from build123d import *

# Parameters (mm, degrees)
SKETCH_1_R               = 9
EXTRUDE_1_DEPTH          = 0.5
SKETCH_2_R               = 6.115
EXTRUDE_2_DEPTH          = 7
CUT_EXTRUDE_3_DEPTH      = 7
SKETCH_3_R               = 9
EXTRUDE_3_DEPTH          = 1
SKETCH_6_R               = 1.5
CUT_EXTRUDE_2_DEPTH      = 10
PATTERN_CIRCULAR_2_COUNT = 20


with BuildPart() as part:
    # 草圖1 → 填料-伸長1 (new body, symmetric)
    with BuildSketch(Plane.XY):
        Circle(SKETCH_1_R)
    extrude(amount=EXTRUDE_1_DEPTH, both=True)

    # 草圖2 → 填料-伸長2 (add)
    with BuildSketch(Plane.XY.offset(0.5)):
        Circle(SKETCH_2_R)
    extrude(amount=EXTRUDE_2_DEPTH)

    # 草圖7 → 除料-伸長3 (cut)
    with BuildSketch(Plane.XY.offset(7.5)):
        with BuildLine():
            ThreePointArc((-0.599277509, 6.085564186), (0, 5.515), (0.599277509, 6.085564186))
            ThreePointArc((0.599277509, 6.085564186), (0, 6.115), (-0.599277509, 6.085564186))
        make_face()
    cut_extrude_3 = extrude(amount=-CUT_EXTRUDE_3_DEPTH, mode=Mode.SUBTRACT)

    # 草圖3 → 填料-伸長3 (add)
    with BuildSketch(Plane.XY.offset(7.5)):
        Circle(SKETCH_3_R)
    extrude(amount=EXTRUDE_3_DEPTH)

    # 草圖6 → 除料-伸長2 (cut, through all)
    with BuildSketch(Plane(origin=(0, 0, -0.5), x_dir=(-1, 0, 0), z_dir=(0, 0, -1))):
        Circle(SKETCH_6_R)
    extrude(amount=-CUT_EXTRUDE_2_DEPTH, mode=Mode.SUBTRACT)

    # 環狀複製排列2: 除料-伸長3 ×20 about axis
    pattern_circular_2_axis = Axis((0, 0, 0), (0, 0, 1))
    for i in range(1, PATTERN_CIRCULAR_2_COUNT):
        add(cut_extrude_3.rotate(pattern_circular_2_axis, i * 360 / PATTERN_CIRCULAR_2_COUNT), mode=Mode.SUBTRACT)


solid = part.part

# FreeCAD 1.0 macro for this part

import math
import FreeCAD as App
import Part
import Sketcher

V = App.Vector
Q = App.Units.Quantity

doc = App.newDocument("Part")
body = doc.addObject("PartDesign::Body", "Body")

sketch1 = body.newObject("Sketcher::SketchObject", "Sketch")
sketch1.AttachmentSupport = (doc.getObject("XY_Plane"), [""])
sketch1.MapMode = "FlatFace"
sketch1.addGeometry(Part.Circle(V(0, 0, 0), V(0, 0, 1), 9), False)
sketch1.addConstraint(Sketcher.Constraint("Coincident", 0, 3, -1, 1))
sketch1.addConstraint(Sketcher.Constraint("Diameter", 0, Q("18 mm")))
pad1 = body.newObject("PartDesign::Pad", "Pad")
pad1.Profile = sketch1
pad1.Length = 1
pad1.Midplane = True

sketch2 = body.newObject("Sketcher::SketchObject", "Sketch001")
sketch2.AttachmentSupport = (doc.getObject("XY_Plane"), [""])
sketch2.MapMode = "FlatFace"
sketch2.AttachmentOffset = App.Placement(V(0, 0, 0.5), App.Rotation())
sketch2.addGeometry(Part.Circle(V(0, 0, 0), V(0, 0, 1), 6), False)
sketch2.addConstraint(Sketcher.Constraint("Coincident", 0, 3, -1, 1))
sketch2.addConstraint(Sketcher.Constraint("Diameter", 0, Q("12.23 mm")))
pad2 = body.newObject("PartDesign::Pad", "Pad001")
pad2.Profile = sketch2
pad2.Length = 7

sketch3 = body.newObject("Sketcher::SketchObject", "Sketch002")
sketch3.AttachmentSupport = (doc.getObject("XY_Plane"), [""])
sketch3.MapMode = "FlatFace"
sketch3.AttachmentOffset = App.Placement(V(0, 0, 7.5), App.Rotation())
sketch3.addGeometry(Part.ArcOfCircle(Part.Circle(V(0, 6.1, 0), V(0, 0, 1), 0.6), math.radians(-177), math.radians(-3)), False)
sketch3.addGeometry(Part.ArcOfCircle(Part.Circle(V(0, 0, 0), V(0, 0, 1), 6.1), math.radians(84.38), math.radians(95.62)), False)
sketch3.addConstraint(Sketcher.Constraint("Coincident", 0, 1, 1, 2))
sketch3.addConstraint(Sketcher.Constraint("Coincident", 1, 1, 0, 2))
sketch3.addConstraint(Sketcher.Constraint("Coincident", 1, 3, -1, 1))
sketch3.addConstraint(Sketcher.Constraint("PointOnObject", 0, 3, -2))
sketch3.addConstraint(Sketcher.Constraint("Radius", 0, Q("0.6 mm")))
sketch3.addConstraint(Sketcher.Constraint("Radius", 1, Q("6.115 mm")))
sketch3.addConstraint(Sketcher.Constraint("DistanceY", -1, 1, 0, 3, Q("6.115 mm")))
pocket1 = body.newObject("PartDesign::Pocket", "Pocket")
pocket1.Profile = sketch3
pocket1.Length = 7

sketch4 = body.newObject("Sketcher::SketchObject", "Sketch003")
sketch4.AttachmentSupport = (doc.getObject("XY_Plane"), [""])
sketch4.MapMode = "FlatFace"
sketch4.AttachmentOffset = App.Placement(V(0, 0, 7.5), App.Rotation())
sketch4.addGeometry(Part.Circle(V(0, 0, 0), V(0, 0, 1), 9), False)
sketch4.addConstraint(Sketcher.Constraint("Coincident", 0, 3, -1, 1))
sketch4.addConstraint(Sketcher.Constraint("Diameter", 0, Q("18 mm")))
pad3 = body.newObject("PartDesign::Pad", "Pad002")
pad3.Profile = sketch4
pad3.Length = 1

sketch5 = body.newObject("Sketcher::SketchObject", "Sketch004")
sketch5.AttachmentSupport = (doc.getObject("XY_Plane"), [""])
sketch5.MapMode = "FlatFace"
sketch5.AttachmentOffset = App.Placement(V(0, 0, -0.5), App.Rotation())
sketch5.addGeometry(Part.Circle(V(0, 0, 0), V(0, 0, 1), 1.5), False)
sketch5.addConstraint(Sketcher.Constraint("Coincident", 0, 3, -1, 1))
sketch5.addConstraint(Sketcher.Constraint("Diameter", 0, Q("3 mm")))
pocket2 = body.newObject("PartDesign::Pocket", "Pocket001")
pocket2.Profile = sketch5
pocket2.Type = "ThroughAll"
pocket2.Reversed = True
doc.recompute()

polarpattern = body.newObject("PartDesign::PolarPattern", "PolarPattern")
polarpattern.Originals = [pocket1]
polarpattern.Axis = (doc.getObject("Z_Axis"), [""])
polarpattern.Angle = 360
polarpattern.Occurrences = 20
body.Tip = polarpattern

doc.recompute()
